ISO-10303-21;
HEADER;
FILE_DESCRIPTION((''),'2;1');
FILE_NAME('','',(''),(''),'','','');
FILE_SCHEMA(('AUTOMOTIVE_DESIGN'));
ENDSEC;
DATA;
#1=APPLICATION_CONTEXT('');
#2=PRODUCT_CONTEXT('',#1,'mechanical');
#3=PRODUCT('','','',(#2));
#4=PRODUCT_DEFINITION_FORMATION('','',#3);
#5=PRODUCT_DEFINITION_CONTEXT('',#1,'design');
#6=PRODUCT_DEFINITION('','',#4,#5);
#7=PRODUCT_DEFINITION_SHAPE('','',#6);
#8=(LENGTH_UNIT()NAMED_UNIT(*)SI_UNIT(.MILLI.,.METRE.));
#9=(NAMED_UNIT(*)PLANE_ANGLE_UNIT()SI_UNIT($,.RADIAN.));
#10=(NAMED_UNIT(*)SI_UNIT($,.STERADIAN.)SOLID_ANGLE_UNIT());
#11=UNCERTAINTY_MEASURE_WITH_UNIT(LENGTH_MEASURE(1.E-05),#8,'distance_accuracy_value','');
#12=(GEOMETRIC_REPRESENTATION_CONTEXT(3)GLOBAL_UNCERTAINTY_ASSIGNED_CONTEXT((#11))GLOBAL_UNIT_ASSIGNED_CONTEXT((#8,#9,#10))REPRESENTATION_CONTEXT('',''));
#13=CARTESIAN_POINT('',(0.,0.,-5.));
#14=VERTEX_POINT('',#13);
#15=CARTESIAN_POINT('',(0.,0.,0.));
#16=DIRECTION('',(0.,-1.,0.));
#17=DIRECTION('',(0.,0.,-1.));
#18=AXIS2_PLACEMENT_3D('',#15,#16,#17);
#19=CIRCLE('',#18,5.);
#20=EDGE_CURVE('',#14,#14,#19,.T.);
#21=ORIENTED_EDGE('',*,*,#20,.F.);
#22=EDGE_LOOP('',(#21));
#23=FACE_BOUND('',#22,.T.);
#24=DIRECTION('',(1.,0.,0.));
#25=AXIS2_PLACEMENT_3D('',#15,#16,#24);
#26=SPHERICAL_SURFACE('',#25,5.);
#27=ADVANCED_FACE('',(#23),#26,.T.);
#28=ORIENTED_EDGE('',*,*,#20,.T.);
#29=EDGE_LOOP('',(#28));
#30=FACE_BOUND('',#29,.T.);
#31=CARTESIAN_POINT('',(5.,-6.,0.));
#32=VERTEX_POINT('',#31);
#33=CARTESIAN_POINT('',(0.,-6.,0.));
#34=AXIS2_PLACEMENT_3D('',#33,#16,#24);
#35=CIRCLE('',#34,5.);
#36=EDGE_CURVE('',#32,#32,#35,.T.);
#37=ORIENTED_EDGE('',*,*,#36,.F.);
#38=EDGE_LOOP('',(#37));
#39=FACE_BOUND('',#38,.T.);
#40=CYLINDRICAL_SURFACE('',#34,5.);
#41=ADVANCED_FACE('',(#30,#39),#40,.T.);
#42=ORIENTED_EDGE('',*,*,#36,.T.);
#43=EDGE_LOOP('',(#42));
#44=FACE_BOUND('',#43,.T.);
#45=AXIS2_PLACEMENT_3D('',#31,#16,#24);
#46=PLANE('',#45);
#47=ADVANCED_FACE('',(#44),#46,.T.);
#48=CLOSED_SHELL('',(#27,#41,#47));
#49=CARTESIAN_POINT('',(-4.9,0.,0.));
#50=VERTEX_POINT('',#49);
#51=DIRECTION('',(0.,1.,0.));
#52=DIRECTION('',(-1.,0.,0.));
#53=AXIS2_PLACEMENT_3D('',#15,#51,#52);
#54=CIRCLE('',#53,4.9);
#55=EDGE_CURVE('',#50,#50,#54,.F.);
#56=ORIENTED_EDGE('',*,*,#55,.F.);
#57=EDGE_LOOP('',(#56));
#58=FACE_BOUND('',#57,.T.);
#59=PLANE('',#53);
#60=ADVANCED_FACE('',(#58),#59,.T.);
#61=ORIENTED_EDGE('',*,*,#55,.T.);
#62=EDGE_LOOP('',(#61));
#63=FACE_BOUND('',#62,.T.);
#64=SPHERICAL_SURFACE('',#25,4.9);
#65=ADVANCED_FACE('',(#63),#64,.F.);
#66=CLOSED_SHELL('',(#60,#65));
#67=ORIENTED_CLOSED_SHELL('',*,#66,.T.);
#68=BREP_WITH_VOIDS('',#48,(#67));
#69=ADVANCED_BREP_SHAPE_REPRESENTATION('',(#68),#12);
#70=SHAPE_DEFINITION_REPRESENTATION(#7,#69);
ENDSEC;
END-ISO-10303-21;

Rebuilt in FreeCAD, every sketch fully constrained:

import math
import FreeCAD as App
import Part
import Sketcher
from FreeCAD import Vector
Q = App.Units.Quantity


def faces_at(feature, points):
    """Names of the faces that lie closest to the given points."""
    faces = feature.Shape.Faces
    near = lambda p: min(range(len(faces)), key=lambda i: faces[i].distToShape(Part.Vertex(*p))[0])
    return sorted({f"Face{near(p) + 1}" for p in points})


def add_polygon(sketch, points):
    """Adds a closed chain of lines whose ends are joined by coincident constraints."""
    first, n = sketch.GeometryCount, len(points)
    for a, b in zip(points, points[1:] + points[:1]):
        sketch.addGeometry(Part.LineSegment(App.Vector(*a, 0), App.Vector(*b, 0)), False)
    for i in range(n):
        sketch.addConstraint(Sketcher.Constraint("Coincident", first + i, 2, first + (i + 1) % n, 1))

doc = App.newDocument("Part")
body = doc.addObject("PartDesign::Body", "Body")

sketch1 = body.newObject("Sketcher::SketchObject", "Sketch")
sketch1.AttachmentSupport = (doc.getObject("XY_Plane"), [""])
sketch1.MapMode = "FlatFace"
sketch1.addGeometry([
    Part.LineSegment(Vector(0, 0, 0), Vector(5, 0, 0)),
    Part.ArcOfCircle(Part.Circle(Vector(0, 0, 0), Vector(0, 0, 1), 5), math.radians(0), math.radians(90)),
    Part.LineSegment(Vector(0, 5, 0), Vector(0, 0, 0)),
], False)
sketch1.addConstraint([
    Sketcher.Constraint("Coincident", 0, 2, 1, 1),
    Sketcher.Constraint("Coincident", 1, 2, 2, 1),
    Sketcher.Constraint("Coincident", 2, 2, 0, 1),
    Sketcher.Constraint("Horizontal", 0),
    Sketcher.Constraint("Vertical", 2),
    Sketcher.Constraint("Coincident", 1, 3, -1, 1),
    Sketcher.Constraint("Coincident", 2, 2, -1, 1),
    Sketcher.Constraint("Radius", 1, Q("5 mm")),
])
revolution = body.newObject("PartDesign::Revolution", "Revolution")
revolution.Profile = sketch1
revolution.ReferenceAxis = (sketch1, ["V_Axis"])
revolution.Angle = 360
doc.recompute()

thickness = body.newObject("PartDesign::Thickness", "Thickness")
thickness.Base = (revolution, faces_at(revolution, [(0, 0, 0)]))
thickness.Value = 0.1
thickness.Reversed = True
thickness.Join = "Intersection"

sketch2 = body.newObject("Sketcher::SketchObject", "Sketch001")
sketch2.AttachmentSupport = (doc.getObject("XY_Plane"), [""])
sketch2.MapMode = "FlatFace"
add_polygon(sketch2, [(0, 0), (0, -6), (5, -6), (5, 0)])
sketch2.addConstraint([
    Sketcher.Constraint("Vertical", 0),
    Sketcher.Constraint("Horizontal", 1),
    Sketcher.Constraint("Vertical", 2),
    Sketcher.Constraint("Horizontal", 3),
    Sketcher.Constraint("Coincident", 3, 2, -1, 1),
    Sketcher.Constraint("DistanceX", 1, 1, 1, 2, Q("5 mm")),
    Sketcher.Constraint("DistanceY", 0, 2, 0, 1, Q("6 mm")),
])
revolution2 = body.newObject("PartDesign::Revolution", "Revolution001")
revolution2.Profile = sketch2
revolution2.ReferenceAxis = (sketch2, ["V_Axis"])
revolution2.Angle = 360

doc.recompute()
